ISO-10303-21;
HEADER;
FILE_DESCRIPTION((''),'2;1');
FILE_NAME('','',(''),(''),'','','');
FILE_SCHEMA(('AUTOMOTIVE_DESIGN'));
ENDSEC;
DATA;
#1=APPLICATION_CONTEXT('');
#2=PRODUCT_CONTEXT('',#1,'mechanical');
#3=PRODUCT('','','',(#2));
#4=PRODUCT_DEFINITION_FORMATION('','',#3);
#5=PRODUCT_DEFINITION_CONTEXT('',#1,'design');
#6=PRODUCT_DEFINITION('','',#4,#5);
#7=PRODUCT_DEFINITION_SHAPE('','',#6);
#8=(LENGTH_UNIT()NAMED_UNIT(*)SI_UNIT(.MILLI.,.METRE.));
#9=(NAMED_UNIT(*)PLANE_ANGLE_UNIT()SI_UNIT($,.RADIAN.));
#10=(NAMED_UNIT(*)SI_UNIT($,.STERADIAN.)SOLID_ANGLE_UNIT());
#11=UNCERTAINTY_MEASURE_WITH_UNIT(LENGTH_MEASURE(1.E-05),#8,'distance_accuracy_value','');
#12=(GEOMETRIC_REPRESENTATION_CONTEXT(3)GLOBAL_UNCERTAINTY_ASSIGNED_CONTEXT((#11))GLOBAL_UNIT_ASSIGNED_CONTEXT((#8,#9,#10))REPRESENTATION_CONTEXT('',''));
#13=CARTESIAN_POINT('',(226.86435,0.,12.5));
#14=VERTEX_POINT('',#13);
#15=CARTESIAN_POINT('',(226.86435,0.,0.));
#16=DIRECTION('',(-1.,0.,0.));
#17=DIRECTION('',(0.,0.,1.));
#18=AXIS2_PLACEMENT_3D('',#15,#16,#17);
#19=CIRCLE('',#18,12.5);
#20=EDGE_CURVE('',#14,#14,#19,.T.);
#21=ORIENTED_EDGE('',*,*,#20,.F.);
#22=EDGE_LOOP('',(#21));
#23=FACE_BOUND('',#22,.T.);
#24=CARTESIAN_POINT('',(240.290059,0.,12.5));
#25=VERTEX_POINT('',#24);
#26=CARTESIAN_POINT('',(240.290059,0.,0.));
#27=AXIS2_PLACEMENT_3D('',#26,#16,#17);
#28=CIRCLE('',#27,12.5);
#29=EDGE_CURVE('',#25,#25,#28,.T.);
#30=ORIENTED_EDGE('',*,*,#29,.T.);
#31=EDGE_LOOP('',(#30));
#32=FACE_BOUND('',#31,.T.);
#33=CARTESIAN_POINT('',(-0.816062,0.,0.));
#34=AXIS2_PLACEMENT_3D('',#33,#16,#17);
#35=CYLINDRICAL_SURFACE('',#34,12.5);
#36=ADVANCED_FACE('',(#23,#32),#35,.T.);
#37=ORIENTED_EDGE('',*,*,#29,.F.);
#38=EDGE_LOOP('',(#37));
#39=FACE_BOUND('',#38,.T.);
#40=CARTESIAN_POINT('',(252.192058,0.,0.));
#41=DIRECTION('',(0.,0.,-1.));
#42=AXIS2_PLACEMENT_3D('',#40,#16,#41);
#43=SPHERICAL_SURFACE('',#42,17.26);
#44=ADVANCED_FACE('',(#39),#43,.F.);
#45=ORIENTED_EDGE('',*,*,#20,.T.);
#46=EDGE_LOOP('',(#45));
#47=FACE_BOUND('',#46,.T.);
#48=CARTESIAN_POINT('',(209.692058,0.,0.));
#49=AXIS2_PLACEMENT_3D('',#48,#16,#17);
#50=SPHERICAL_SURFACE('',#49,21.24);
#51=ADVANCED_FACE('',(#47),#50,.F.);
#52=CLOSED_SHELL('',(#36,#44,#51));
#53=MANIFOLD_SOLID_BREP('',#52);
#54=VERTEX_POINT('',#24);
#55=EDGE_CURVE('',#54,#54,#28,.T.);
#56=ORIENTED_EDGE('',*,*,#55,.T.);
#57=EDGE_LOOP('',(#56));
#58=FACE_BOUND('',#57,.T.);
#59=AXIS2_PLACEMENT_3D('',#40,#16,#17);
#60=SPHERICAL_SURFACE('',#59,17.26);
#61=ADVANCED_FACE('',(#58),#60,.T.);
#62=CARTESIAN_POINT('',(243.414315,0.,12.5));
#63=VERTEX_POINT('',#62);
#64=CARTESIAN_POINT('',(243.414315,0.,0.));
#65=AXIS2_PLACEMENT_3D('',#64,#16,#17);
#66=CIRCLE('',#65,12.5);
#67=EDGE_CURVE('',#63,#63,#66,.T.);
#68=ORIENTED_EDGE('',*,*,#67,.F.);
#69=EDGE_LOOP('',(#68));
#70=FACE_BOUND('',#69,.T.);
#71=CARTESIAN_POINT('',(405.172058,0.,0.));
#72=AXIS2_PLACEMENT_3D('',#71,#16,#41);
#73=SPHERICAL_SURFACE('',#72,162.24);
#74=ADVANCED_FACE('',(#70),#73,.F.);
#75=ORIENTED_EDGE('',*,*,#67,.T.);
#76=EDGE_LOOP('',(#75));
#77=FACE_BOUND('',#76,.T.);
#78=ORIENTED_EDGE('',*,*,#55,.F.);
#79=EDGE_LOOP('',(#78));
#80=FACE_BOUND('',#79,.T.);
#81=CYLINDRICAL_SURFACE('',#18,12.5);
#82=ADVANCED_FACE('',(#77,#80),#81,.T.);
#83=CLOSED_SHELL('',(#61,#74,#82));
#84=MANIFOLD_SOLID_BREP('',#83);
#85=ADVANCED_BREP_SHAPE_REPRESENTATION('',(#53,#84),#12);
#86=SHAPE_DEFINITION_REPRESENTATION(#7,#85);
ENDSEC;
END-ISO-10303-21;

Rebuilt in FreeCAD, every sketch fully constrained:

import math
import FreeCAD as App
import Part
import Sketcher

doc = App.newDocument("Part")
body = doc.addObject("PartDesign::Body", "Body")

sketch1 = body.newObject("Sketcher::SketchObject", "Sketch")
sketch1.AttachmentSupport = (doc.getObject("XZ_Plane"), [""])
sketch1.MapMode = "FlatFace"
sketch1.addGeometry([
    Part.LineSegment(App.Vector(240.3, -12.5, 0), App.Vector(226.9, -12.5, 0)),
    Part.ArcOfCircle(Part.Circle(App.Vector(209.7, 0, 0), App.Vector(0, 0, 1), 21.2), math.radians(-36), math.radians(0)),
    Part.LineSegment(App.Vector(230.9, 0, 0), App.Vector(234.9, 0, 0)),
    Part.ArcOfCircle(Part.Circle(App.Vector(252.2, 0, 0), App.Vector(0, 0, 1), 17.3), math.radians(-180), math.radians(-134)),
], False)
sketch1.addConstraint([
    Sketcher.Constraint("Coincident", 0, 2, 1, 1),
    Sketcher.Constraint("Coincident", 1, 2, 2, 1),
    Sketcher.Constraint("Coincident", 2, 2, 3, 1),
    Sketcher.Constraint("Coincident", 3, 2, 0, 1),
    Sketcher.Constraint("Horizontal", 0),
    Sketcher.Constraint("Horizontal", 2),
    Sketcher.Constraint("PointOnObject", 1, 3, -1),
    Sketcher.Constraint("PointOnObject", 3, 3, -1),
    Sketcher.Constraint("PointOnObject", 1, 2, -1),
    Sketcher.Constraint("DistanceX", 2, 1, 2, 2, 4.0),
    Sketcher.Constraint("Radius", 1, 21.24),
    Sketcher.Constraint("Radius", 3, 17.26),
    Sketcher.Constraint("DistanceY", 0, 2, -1, 1, 12.5),
    Sketcher.Constraint("DistanceX", -1, 1, 1, 3, 209.692058),
])
revolution = body.newObject("PartDesign::Revolution", "Revolution")
revolution.Profile = sketch1
revolution.ReferenceAxis = (sketch1, ["H_Axis"])
revolution.Angle = 360
body2 = doc.addObject("PartDesign::Body", "Body001")

sketch2 = body2.newObject("Sketcher::SketchObject", "Sketch001")
sketch2.AttachmentSupport = (doc.getObject("XZ_Plane001"), [""])
sketch2.MapMode = "FlatFace"
sketch2.addGeometry([
    Part.LineSegment(App.Vector(243.4, -12.5, 0), App.Vector(240.3, -12.5, 0)),
    Part.ArcOfCircle(Part.Circle(App.Vector(252.2, 0, 0), App.Vector(0, 0, 1), 17.3), math.radians(-180), math.radians(-134)),
    Part.LineSegment(App.Vector(234.9, 0, 0), App.Vector(242.9, 0, 0)),
    Part.ArcOfCircle(Part.Circle(App.Vector(405.2, 0, 0), App.Vector(0, 0, 1), 162.2), math.radians(180), math.radians(184.42)),
], False)
sketch2.addConstraint([
    Sketcher.Constraint("Coincident", 0, 2, 1, 2),
    Sketcher.Constraint("Coincident", 1, 1, 2, 1),
    Sketcher.Constraint("Coincident", 2, 2, 3, 1),
    Sketcher.Constraint("Coincident", 3, 2, 0, 1),
    Sketcher.Constraint("Horizontal", 0),
    Sketcher.Constraint("Horizontal", 2),
    Sketcher.Constraint("PointOnObject", 1, 3, -1),
    Sketcher.Constraint("PointOnObject", 3, 3, -1),
    Sketcher.Constraint("PointOnObject", 1, 1, -1),
    Sketcher.Constraint("DistanceX", 2, 1, 2, 2, 8.0),
    Sketcher.Constraint("Radius", 1, 17.26),
    Sketcher.Constraint("Radius", 3, 162.239999),
    Sketcher.Constraint("DistanceY", 0, 2, -1, 1, 12.5),
    Sketcher.Constraint("DistanceX", -1, 1, 1, 3, 252.192058),
])
revolution2 = body2.newObject("PartDesign::Revolution", "Revolution001")
revolution2.Profile = sketch2
revolution2.ReferenceAxis = (sketch2, ["H_Axis"])
revolution2.Angle = 360

doc.recompute()
